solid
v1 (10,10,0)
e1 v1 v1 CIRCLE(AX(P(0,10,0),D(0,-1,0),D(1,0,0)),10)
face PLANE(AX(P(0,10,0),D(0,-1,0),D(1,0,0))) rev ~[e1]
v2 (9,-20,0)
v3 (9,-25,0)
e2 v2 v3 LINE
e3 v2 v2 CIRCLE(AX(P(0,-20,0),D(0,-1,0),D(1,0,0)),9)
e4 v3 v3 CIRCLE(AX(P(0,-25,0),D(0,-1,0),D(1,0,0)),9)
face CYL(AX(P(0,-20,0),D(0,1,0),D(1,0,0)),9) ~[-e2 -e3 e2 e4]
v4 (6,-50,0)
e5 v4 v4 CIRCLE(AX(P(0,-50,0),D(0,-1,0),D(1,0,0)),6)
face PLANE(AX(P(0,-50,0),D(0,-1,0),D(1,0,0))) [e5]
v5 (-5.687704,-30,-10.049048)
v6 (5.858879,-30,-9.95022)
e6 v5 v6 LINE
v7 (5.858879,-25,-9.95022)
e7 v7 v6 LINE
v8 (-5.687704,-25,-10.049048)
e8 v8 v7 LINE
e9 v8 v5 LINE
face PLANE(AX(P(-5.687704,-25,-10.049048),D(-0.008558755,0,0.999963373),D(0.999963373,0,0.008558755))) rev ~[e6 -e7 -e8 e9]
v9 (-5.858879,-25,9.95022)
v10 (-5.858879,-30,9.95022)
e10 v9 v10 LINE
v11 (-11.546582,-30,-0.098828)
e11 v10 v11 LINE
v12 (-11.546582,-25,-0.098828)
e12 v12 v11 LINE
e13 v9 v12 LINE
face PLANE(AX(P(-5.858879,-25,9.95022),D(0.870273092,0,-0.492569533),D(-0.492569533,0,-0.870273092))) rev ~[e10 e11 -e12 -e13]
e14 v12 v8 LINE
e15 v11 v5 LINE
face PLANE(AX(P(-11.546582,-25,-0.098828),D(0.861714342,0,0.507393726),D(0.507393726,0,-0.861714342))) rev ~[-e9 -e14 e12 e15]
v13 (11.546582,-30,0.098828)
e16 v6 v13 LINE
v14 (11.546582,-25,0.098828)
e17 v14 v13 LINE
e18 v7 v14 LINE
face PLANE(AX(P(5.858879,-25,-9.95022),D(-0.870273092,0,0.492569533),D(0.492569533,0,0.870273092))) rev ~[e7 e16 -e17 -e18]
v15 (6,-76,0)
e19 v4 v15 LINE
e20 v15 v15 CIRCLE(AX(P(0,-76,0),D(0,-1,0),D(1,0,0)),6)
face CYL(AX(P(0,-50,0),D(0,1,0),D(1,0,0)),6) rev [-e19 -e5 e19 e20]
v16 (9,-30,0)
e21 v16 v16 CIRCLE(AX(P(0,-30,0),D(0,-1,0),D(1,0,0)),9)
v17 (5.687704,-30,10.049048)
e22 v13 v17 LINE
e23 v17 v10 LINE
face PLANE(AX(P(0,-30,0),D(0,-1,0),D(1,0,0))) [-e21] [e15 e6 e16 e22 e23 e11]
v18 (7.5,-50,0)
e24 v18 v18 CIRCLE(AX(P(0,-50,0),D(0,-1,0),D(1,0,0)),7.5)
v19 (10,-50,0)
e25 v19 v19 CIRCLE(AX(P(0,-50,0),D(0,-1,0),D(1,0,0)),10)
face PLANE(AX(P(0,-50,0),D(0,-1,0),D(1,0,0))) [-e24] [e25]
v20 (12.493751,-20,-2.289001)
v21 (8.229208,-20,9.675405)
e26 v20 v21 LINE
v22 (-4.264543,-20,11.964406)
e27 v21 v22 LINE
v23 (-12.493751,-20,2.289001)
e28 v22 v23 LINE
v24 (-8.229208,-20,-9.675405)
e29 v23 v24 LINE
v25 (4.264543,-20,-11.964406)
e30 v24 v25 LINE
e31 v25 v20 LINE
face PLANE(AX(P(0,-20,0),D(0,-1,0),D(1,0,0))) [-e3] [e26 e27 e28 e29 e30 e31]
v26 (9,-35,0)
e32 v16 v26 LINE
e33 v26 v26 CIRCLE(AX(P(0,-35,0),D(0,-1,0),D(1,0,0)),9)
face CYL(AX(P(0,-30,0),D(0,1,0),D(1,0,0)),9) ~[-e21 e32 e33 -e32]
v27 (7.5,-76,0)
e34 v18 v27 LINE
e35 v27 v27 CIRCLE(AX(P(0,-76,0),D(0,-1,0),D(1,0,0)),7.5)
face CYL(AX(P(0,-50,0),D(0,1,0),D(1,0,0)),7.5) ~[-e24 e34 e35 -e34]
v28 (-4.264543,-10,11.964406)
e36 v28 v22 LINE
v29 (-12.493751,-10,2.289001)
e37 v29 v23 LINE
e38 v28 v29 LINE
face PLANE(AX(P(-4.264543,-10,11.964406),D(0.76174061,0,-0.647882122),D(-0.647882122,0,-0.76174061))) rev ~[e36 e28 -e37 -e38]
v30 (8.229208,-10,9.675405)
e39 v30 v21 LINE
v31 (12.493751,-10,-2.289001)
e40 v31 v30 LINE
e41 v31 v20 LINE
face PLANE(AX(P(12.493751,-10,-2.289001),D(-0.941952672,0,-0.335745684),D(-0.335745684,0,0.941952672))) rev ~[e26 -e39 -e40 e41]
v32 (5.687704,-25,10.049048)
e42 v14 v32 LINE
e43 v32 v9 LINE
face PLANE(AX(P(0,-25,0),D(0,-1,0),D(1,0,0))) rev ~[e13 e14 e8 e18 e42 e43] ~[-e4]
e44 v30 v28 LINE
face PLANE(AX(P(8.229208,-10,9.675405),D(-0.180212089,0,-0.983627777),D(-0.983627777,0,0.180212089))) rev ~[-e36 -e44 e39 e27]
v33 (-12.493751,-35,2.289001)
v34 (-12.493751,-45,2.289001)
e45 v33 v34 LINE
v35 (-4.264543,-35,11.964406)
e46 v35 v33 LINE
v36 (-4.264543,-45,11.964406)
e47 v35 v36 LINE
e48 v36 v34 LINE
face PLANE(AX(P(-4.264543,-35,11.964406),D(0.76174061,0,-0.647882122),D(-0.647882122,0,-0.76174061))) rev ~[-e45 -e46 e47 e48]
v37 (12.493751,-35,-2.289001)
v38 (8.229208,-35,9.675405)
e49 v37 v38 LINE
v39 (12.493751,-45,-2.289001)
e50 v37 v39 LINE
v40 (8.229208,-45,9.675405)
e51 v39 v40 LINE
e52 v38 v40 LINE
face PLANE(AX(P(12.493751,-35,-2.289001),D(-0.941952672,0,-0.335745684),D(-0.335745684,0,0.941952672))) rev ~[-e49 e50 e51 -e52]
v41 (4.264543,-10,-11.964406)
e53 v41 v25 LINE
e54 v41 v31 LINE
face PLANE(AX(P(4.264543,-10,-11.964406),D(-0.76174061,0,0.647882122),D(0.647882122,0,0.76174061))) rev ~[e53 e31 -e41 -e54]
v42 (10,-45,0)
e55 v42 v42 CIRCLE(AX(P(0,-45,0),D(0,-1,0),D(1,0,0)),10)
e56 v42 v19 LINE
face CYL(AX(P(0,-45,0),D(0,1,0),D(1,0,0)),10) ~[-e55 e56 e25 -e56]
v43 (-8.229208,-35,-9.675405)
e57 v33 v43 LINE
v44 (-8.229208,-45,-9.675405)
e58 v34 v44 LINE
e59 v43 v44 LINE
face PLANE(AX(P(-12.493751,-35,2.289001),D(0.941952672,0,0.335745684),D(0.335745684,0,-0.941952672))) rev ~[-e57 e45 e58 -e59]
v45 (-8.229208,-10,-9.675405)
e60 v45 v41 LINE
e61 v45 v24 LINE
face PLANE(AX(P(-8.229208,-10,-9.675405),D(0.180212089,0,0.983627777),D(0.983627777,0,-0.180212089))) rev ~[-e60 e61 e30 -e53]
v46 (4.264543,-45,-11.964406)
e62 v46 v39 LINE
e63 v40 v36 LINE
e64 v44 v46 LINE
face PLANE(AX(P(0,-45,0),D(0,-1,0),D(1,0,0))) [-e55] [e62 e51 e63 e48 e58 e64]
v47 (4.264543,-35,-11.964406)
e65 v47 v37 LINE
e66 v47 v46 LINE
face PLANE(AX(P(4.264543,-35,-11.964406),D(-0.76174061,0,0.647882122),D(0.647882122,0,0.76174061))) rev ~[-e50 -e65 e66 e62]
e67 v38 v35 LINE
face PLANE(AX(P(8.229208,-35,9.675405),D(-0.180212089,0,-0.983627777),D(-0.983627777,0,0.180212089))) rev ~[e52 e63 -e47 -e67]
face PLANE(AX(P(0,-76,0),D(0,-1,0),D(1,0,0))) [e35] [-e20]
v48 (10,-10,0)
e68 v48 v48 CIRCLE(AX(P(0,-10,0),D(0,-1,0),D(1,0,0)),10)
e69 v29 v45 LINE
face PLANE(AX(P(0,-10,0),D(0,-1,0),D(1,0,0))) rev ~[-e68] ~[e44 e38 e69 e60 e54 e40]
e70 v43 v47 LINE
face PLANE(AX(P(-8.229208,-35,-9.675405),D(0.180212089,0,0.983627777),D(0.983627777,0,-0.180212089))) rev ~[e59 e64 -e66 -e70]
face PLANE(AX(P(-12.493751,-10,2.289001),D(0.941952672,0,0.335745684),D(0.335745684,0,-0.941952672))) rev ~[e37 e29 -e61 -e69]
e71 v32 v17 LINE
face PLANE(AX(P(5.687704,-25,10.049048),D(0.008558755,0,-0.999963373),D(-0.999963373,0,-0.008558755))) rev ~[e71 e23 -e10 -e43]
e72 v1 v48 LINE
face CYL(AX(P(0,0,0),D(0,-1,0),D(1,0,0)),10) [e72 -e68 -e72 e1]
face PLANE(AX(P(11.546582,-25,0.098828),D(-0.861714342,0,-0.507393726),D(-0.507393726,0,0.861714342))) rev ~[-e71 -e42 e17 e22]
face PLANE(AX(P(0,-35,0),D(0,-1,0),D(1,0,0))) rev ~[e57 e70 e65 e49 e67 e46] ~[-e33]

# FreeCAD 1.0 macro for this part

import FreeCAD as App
import Part
import Sketcher

doc = App.newDocument("Part")
body = doc.addObject("PartDesign::Body", "Body")

sketch1 = body.newObject("Sketcher::SketchObject", "Sketch")
sketch1.AttachmentSupport = (doc.getObject("XZ_Plane"), [""])
sketch1.MapMode = "FlatFace"
sketch1.addGeometry(Part.Circle(App.Vector(0, 0, 0), App.Vector(0, 0, 1), 10), False)
sketch1.addConstraint([
    Sketcher.Constraint("Coincident", 0, 3, -1, 1),
    Sketcher.Constraint("Diameter", 0, 20.0),
])
pad1 = body.newObject("PartDesign::Pad", "Pad")
pad1.Profile = sketch1
pad1.Length = 20
pad1.Midplane = True

sketch2 = body.newObject("Sketcher::SketchObject", "Sketch001")
sketch2.AttachmentSupport = (doc.getObject("XZ_Plane"), [""])
sketch2.MapMode = "FlatFace"
sketch2.AttachmentOffset = App.Placement(App.Vector(0, 0, 10), App.Rotation())
sketch2.addGeometry([
    Part.LineSegment(App.Vector(4, -12, 0), App.Vector(12, -2, 0)),
    Part.LineSegment(App.Vector(12, -2, 0), App.Vector(8, 10, 0)),
    Part.LineSegment(App.Vector(8, 10, 0), App.Vector(-4, 12, 0)),
    Part.LineSegment(App.Vector(-4, 12, 0), App.Vector(-12, 2, 0)),
    Part.LineSegment(App.Vector(-12, 2, 0), App.Vector(-8, -10, 0)),
    Part.LineSegment(App.Vector(-8, -10, 0), App.Vector(4, -12, 0)),
], False)
sketch2.addConstraint([
    Sketcher.Constraint("Coincident", 0, 2, 1, 1),
    Sketcher.Constraint("Coincident", 1, 2, 2, 1),
    Sketcher.Constraint("Coincident", 2, 2, 3, 1),
    Sketcher.Constraint("Coincident", 3, 2, 4, 1),
    Sketcher.Constraint("Coincident", 4, 2, 5, 1),
    Sketcher.Constraint("Coincident", 5, 2, 0, 1),
    Sketcher.Constraint("Symmetric", 0, 2, 3, 2, -1, 1),
    Sketcher.Constraint("Symmetric", 1, 2, 4, 2, -1, 1),
    Sketcher.Constraint("Symmetric", 2, 2, 5, 2, -1, 1),
    Sketcher.Constraint("Equal", 0, 1),
    Sketcher.Constraint("Equal", 1, 2),
    Sketcher.Constraint("DistanceY", 0, 2, -1, 1, 2.289001),
    Sketcher.Constraint("DistanceY", 1, 2, 2, 2, 2.289001),
    Sketcher.Constraint("DistanceX", 3, 2, 0, 2, 24.987502),
    Sketcher.Constraint("DistanceX", 2, 2, 1, 2, 12.493751),
])
pad2 = body.newObject("PartDesign::Pad", "Pad001")
pad2.Profile = sketch2
pad2.Length = 10

sketch3 = body.newObject("Sketcher::SketchObject", "Sketch002")
sketch3.AttachmentSupport = (doc.getObject("XZ_Plane"), [""])
sketch3.MapMode = "FlatFace"
sketch3.AttachmentOffset = App.Placement(App.Vector(0, 0, 20), App.Rotation())
sketch3.addGeometry(Part.Circle(App.Vector(0, 0, 0), App.Vector(0, 0, 1), 9), False)
sketch3.addConstraint([
    Sketcher.Constraint("Coincident", 0, 3, -1, 1),
    Sketcher.Constraint("Diameter", 0, 18.0),
])
pad3 = body.newObject("PartDesign::Pad", "Pad002")
pad3.Profile = sketch3
pad3.Length = 5

sketch4 = body.newObject("Sketcher::SketchObject", "Sketch003")
sketch4.AttachmentSupport = (doc.getObject("XZ_Plane"), [""])
sketch4.MapMode = "FlatFace"
sketch4.AttachmentOffset = App.Placement(App.Vector(0, 0, 25), App.Rotation())
sketch4.addGeometry([
    Part.LineSegment(App.Vector(6, -10, 0), App.Vector(12, 0, 0)),
    Part.LineSegment(App.Vector(12, 0, 0), App.Vector(6, 10, 0)),
    Part.LineSegment(App.Vector(6, 10, 0), App.Vector(-6, 10, 0)),
    Part.LineSegment(App.Vector(-6, 10, 0), App.Vector(-12, 0, 0)),
    Part.LineSegment(App.Vector(-12, 0, 0), App.Vector(-6, -10, 0)),
    Part.LineSegment(App.Vector(-6, -10, 0), App.Vector(6, -10, 0)),
], False)
sketch4.addConstraint([
    Sketcher.Constraint("Coincident", 0, 2, 1, 1),
    Sketcher.Constraint("Coincident", 1, 2, 2, 1),
    Sketcher.Constraint("Coincident", 2, 2, 3, 1),
    Sketcher.Constraint("Coincident", 3, 2, 4, 1),
    Sketcher.Constraint("Coincident", 4, 2, 5, 1),
    Sketcher.Constraint("Coincident", 5, 2, 0, 1),
    Sketcher.Constraint("Symmetric", 0, 2, 3, 2, -1, 1),
    Sketcher.Constraint("Symmetric", 1, 2, 4, 2, -1, 1),
    Sketcher.Constraint("Symmetric", 2, 2, 5, 2, -1, 1),
    Sketcher.Constraint("Equal", 0, 1),
    Sketcher.Constraint("Equal", 1, 2),
    Sketcher.Constraint("DistanceY", -1, 1, 1, 2, 10.049048),
    Sketcher.Constraint("DistanceX", 2, 2, -1, 1, 5.858879),
    Sketcher.Constraint("DistanceY", -1, 1, 2, 2, 9.95022),
    Sketcher.Constraint("DistanceX", 1, 2, 0, 2, 5.858878),
])
pad4 = body.newObject("PartDesign::Pad", "Pad003")
pad4.Profile = sketch4
pad4.Length = 5

sketch5 = body.newObject("Sketcher::SketchObject", "Sketch004")
sketch5.AttachmentSupport = (doc.getObject("XZ_Plane"), [""])
sketch5.MapMode = "FlatFace"
sketch5.AttachmentOffset = App.Placement(App.Vector(0, 0, 30), App.Rotation())
sketch5.addGeometry(Part.Circle(App.Vector(0, 0, 0), App.Vector(0, 0, 1), 9), False)
sketch5.addConstraint([
    Sketcher.Constraint("Coincident", 0, 3, -1, 1),
    Sketcher.Constraint("Diameter", 0, 18.0),
])
pad5 = body.newObject("PartDesign::Pad", "Pad004")
pad5.Profile = sketch5
pad5.Length = 5

sketch6 = body.newObject("Sketcher::SketchObject", "Sketch005")
sketch6.AttachmentSupport = (doc.getObject("XZ_Plane"), [""])
sketch6.MapMode = "FlatFace"
sketch6.AttachmentOffset = App.Placement(App.Vector(0, 0, 35), App.Rotation())
sketch6.addGeometry([
    Part.LineSegment(App.Vector(8, 10, 0), App.Vector(-4, 12, 0)),
    Part.LineSegment(App.Vector(-4, 12, 0), App.Vector(-12, 2, 0)),
    Part.LineSegment(App.Vector(-12, 2, 0), App.Vector(-8, -10, 0)),
    Part.LineSegment(App.Vector(-8, -10, 0), App.Vector(4, -12, 0)),
    Part.LineSegment(App.Vector(4, -12, 0), App.Vector(12, -2, 0)),
    Part.LineSegment(App.Vector(12, -2, 0), App.Vector(8, 10, 0)),
], False)
sketch6.addConstraint([
    Sketcher.Constraint("Coincident", 0, 2, 1, 1),
    Sketcher.Constraint("Coincident", 1, 2, 2, 1),
    Sketcher.Constraint("Coincident", 2, 2, 3, 1),
    Sketcher.Constraint("Coincident", 3, 2, 4, 1),
    Sketcher.Constraint("Coincident", 4, 2, 5, 1),
    Sketcher.Constraint("Coincident", 5, 2, 0, 1),
    Sketcher.Constraint("Symmetric", 0, 2, 3, 2, -1, 1),
    Sketcher.Constraint("Symmetric", 1, 2, 4, 2, -1, 1),
    Sketcher.Constraint("Symmetric", 2, 2, 5, 2, -1, 1),
    Sketcher.Constraint("Equal", 0, 1),
    Sketcher.Constraint("Equal", 1, 2),
    Sketcher.Constraint("DistanceY", -1, 1, 1, 2, 2.289001),
    Sketcher.Constraint("DistanceY", 3, 2, 2, 2, 2.289001),
    Sketcher.Constraint("DistanceX", 1, 2, 4, 2, 24.987502),
    Sketcher.Constraint("DistanceY", 2, 2, 0, 2, 21.639811),
])
pad6 = body.newObject("PartDesign::Pad", "Pad005")
pad6.Profile = sketch6
pad6.Length = 10

sketch7 = body.newObject("Sketcher::SketchObject", "Sketch006")
sketch7.AttachmentSupport = (doc.getObject("XZ_Plane"), [""])
sketch7.MapMode = "FlatFace"
sketch7.AttachmentOffset = App.Placement(App.Vector(0, 0, 45), App.Rotation())
sketch7.addGeometry(Part.Circle(App.Vector(0, 0, 0), App.Vector(0, 0, 1), 10), False)
sketch7.addConstraint([
    Sketcher.Constraint("Coincident", 0, 3, -1, 1),
    Sketcher.Constraint("Diameter", 0, 20.0),
])
pad7 = body.newObject("PartDesign::Pad", "Pad006")
pad7.Profile = sketch7
pad7.Length = 5

sketch8 = body.newObject("Sketcher::SketchObject", "Sketch007")
sketch8.AttachmentSupport = (doc.getObject("XZ_Plane"), [""])
sketch8.MapMode = "FlatFace"
sketch8.AttachmentOffset = App.Placement(App.Vector(0, 0, 50), App.Rotation())
sketch8.addGeometry([
    Part.Circle(App.Vector(0, 0, 0), App.Vector(0, 0, 1), 8),
    Part.Circle(App.Vector(0, 0, 0), App.Vector(0, 0, 1), 6),
], False)
sketch8.addConstraint([
    Sketcher.Constraint("Coincident", 0, 3, -1, 1),
    Sketcher.Constraint("Coincident", 1, 3, -1, 1),
    Sketcher.Constraint("Diameter", 0, 15.0),
    Sketcher.Constraint("Diameter", 1, 12.0),
])
pad8 = body.newObject("PartDesign::Pad", "Pad007")
pad8.Profile = sketch8
pad8.Length = 26

doc.recompute()
